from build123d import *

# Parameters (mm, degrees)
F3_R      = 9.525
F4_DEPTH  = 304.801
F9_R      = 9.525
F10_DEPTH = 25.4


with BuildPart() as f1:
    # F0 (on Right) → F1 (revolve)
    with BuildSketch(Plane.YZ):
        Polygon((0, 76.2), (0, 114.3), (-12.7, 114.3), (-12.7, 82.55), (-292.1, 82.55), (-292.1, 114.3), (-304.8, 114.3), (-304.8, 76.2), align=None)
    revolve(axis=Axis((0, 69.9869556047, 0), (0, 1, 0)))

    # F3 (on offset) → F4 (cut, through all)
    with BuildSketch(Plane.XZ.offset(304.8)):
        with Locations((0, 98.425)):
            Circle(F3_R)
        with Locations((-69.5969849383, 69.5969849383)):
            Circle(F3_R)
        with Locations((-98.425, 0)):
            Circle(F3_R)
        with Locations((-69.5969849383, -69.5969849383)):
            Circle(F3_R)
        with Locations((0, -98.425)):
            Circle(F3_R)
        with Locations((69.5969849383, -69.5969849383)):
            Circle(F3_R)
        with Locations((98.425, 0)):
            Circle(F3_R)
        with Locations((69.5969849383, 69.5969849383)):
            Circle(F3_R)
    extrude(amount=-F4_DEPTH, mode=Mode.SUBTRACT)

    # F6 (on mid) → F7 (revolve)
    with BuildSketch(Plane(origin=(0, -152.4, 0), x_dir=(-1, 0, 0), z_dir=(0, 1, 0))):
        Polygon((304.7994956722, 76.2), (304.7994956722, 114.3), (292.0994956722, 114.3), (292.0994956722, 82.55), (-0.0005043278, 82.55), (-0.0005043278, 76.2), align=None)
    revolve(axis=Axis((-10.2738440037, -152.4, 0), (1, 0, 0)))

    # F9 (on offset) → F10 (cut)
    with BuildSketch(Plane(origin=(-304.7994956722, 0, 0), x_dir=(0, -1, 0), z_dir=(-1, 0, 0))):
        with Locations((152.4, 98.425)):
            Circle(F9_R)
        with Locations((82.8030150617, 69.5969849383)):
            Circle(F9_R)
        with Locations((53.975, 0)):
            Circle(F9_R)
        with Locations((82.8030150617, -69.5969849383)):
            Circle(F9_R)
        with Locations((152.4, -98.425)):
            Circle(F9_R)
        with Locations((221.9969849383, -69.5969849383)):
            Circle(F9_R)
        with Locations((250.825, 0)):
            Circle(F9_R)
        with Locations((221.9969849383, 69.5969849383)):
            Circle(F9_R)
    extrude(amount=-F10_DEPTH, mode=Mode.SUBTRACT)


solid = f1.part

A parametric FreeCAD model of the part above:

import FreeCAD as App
import Part
import Sketcher

V = App.Vector
Q = App.Units.Quantity


def add_polygon(sketch, points):
    """Adds a closed chain of lines whose ends are joined by coincident constraints."""
    first, n = sketch.GeometryCount, len(points)
    for a, b in zip(points, points[1:] + points[:1]):
        sketch.addGeometry(Part.LineSegment(App.Vector(*a, 0), App.Vector(*b, 0)), False)
    for i in range(n):
        sketch.addConstraint(Sketcher.Constraint("Coincident", first + i, 2, first + (i + 1) % n, 1))

doc = App.newDocument("Part")
body = doc.addObject("PartDesign::Body", "Body")

# Sketch on YZ plane
sketch1 = body.newObject("Sketcher::SketchObject", "Sketch")
sketch1.AttachmentSupport = (doc.getObject("YZ_Plane"), [""])
sketch1.MapMode = "FlatFace"
add_polygon(sketch1, [(0, 76), (0, 114), (-13, 114), (-13, 83), (-292, 83), (-292, 114), (-305, 114), (-305, 76)])  # lines 0-7
sketch1.addConstraint([
    Sketcher.Constraint("Vertical", 0),
    Sketcher.Constraint("Horizontal", 1),
    Sketcher.Constraint("Vertical", 2),
    Sketcher.Constraint("Horizontal", 3),
    Sketcher.Constraint("Vertical", 4),
    Sketcher.Constraint("Horizontal", 5),
    Sketcher.Constraint("Vertical", 6),
    Sketcher.Constraint("Horizontal", 7),
    Sketcher.Constraint("PointOnObject", 0, 2, -2),
    Sketcher.Constraint("Horizontal", 1, 2, 4, 2),
    Sketcher.Constraint("Equal", 1, 5),
    Sketcher.Constraint("DistanceX", 3, 2, 3, 1, Q("11 in")),
    Sketcher.Constraint("DistanceX", 7, 1, 7, 2, Q("12 in")),
    Sketcher.Constraint("DistanceY", 0, 1, 0, 2, Q("1.5 in")),
    Sketcher.Constraint("DistanceY", -1, 1, 6, 2, Q("3 in")),
    Sketcher.Constraint("DistanceY", 2, 2, 2, 1, Q("1.25 in")),
])
revolution = body.newObject("PartDesign::Revolution", "Revolution")
revolution.Profile = sketch1
revolution.ReferenceAxis = (sketch1, ["H_Axis"])
revolution.Angle = 360

# Sketch on XZ plane
sketch2 = body.newObject("Sketcher::SketchObject", "Sketch001")
sketch2.AttachmentSupport = (doc.getObject("XZ_Plane"), [""])
sketch2.MapMode = "FlatFace"
sketch2.AttachmentOffset = App.Placement(V(0, 0, 12 * 25.4), App.Rotation())
sketch2.addGeometry([
    Part.Circle(V(0, 98, 0), V(0, 0, 1), 10),  # 0
    Part.Circle(V(-70, 70, 0), V(0, 0, 1), 10),  # 1
    Part.Circle(V(-98, 0, 0), V(0, 0, 1), 10),  # 2
    Part.Circle(V(-70, -70, 0), V(0, 0, 1), 10),  # 3
    Part.Circle(V(0, -98, 0), V(0, 0, 1), 10),  # 4
    Part.Circle(V(70, -70, 0), V(0, 0, 1), 10),  # 5
    Part.Circle(V(98, 0, 0), V(0, 0, 1), 10),  # 6
    Part.Circle(V(70, 70, 0), V(0, 0, 1), 10),  # 7
], False)
sketch2.addConstraint([
    Sketcher.Constraint("Equal", 0, 1),
    Sketcher.Constraint("Equal", 1, 2),
    Sketcher.Constraint("Equal", 2, 3),
    Sketcher.Constraint("Equal", 3, 4),
    Sketcher.Constraint("Equal", 4, 5),
    Sketcher.Constraint("Equal", 5, 6),
    Sketcher.Constraint("Equal", 6, 7),
    Sketcher.Constraint("Symmetric", 0, 3, 4, 3, -1, 1),
    Sketcher.Constraint("Symmetric", 1, 3, 5, 3, -1, 1),
    Sketcher.Constraint("Symmetric", 2, 3, 6, 3, -1, 1),
    Sketcher.Constraint("Symmetric", 3, 3, 7, 3, -1, 1),
    Sketcher.Constraint("Symmetric", 3, 3, 5, 3, -2),
    Sketcher.Constraint("PointOnObject", 0, 3, -2),
    Sketcher.Constraint("PointOnObject", 2, 3, -1),
    Sketcher.Constraint("Diameter", 0, Q("0.75 in")),
    Sketcher.Constraint("DistanceY", 4, 3, 0, 3, Q("7.75 in")),
    Sketcher.Constraint("DistanceX", 2, 3, -1, 1, Q("3.875 in")),
    Sketcher.Constraint("DistanceY", 3, 3, 1, 3, 139.19397),
    Sketcher.Constraint("DistanceX", 3, 3, 5, 3, 139.19397),
])
pocket1 = body.newObject("PartDesign::Pocket", "Pocket")
pocket1.Profile = sketch2
pocket1.Type = "ThroughAll"

# Sketch on XZ plane
sketch3 = body.newObject("Sketcher::SketchObject", "Sketch002")
sketch3.AttachmentSupport = (doc.getObject("XZ_Plane"), [""])
sketch3.MapMode = "FlatFace"
sketch3.AttachmentOffset = App.Placement(V(0, 0, 6 * 25.4), App.Rotation())
add_polygon(sketch3, [(-305, 76), (-305, 114), (-292, 114), (-292, 83), (0, 83), (0, 76)])  # lines 0-5
sketch3.addConstraint([
    Sketcher.Constraint("Vertical", 0),
    Sketcher.Constraint("Horizontal", 1),
    Sketcher.Constraint("Vertical", 2),
    Sketcher.Constraint("Horizontal", 3),
    Sketcher.Constraint("Vertical", 4),
    Sketcher.Constraint("Horizontal", 5),
    Sketcher.Constraint("DistanceX", 5, 2, 5, 1, Q("12 in")),
    Sketcher.Constraint("DistanceX", 1, 1, 1, 2, Q("0.5 in")),
    Sketcher.Constraint("DistanceY", 0, 1, 0, 2, Q("1.5 in")),
    Sketcher.Constraint("DistanceY", -1, 1, 4, 2, Q("3 in")),
    Sketcher.Constraint("DistanceY", 2, 2, 2, 1, Q("1.25 in")),
    Sketcher.Constraint("DistanceX", 0, 2, -1, 1, 304.799496),
])
revolution2 = body.newObject("PartDesign::Revolution", "Revolution001")
revolution2.Profile = sketch3
revolution2.ReferenceAxis = (sketch3, ["H_Axis"])
revolution2.Angle = 360

# Sketch on YZ plane
sketch4 = body.newObject("Sketcher::SketchObject", "Sketch003")
sketch4.AttachmentSupport = (doc.getObject("YZ_Plane"), [""])
sketch4.MapMode = "FlatFace"
sketch4.AttachmentOffset = App.Placement(V(0, 0, -304.799496), App.Rotation())
sketch4.addGeometry([
    Part.Circle(V(-152, 98, 0), V(0, 0, 1), 10),  # 0
    Part.Circle(V(-83, 70, 0), V(0, 0, 1), 10),  # 1
    Part.Circle(V(-54, 0, 0), V(0, 0, 1), 10),  # 2
    Part.Circle(V(-83, -70, 0), V(0, 0, 1), 10),  # 3
    Part.Circle(V(-152, -98, 0), V(0, 0, 1), 10),  # 4
    Part.Circle(V(-222, -70, 0), V(0, 0, 1), 10),  # 5
    Part.Circle(V(-251, 0, 0), V(0, 0, 1), 10),  # 6
    Part.Circle(V(-222, 70, 0), V(0, 0, 1), 10),  # 7
], False)
sketch4.addConstraint([
    Sketcher.Constraint("Equal", 0, 1),
    Sketcher.Constraint("Equal", 1, 2),
    Sketcher.Constraint("Equal", 2, 3),
    Sketcher.Constraint("Equal", 3, 4),
    Sketcher.Constraint("Equal", 4, 5),
    Sketcher.Constraint("Equal", 5, 6),
    Sketcher.Constraint("Equal", 6, 7),
    Sketcher.Constraint("Symmetric", 1, 3, 3, 3, -1),
    Sketcher.Constraint("Symmetric", 0, 3, 4, 3, -1),
    Sketcher.Constraint("Symmetric", 5, 3, 7, 3, -1),
    Sketcher.Constraint("PointOnObject", 2, 3, -1),
    Sketcher.Constraint("PointOnObject", 6, 3, -1),
    Sketcher.Constraint("Horizontal", 3, 3, 5, 3),
    Sketcher.Constraint("Diameter", 0, Q("0.75 in")),
    Sketcher.Constraint("DistanceX", 0, 3, -1, 1, Q("6 in")),
    Sketcher.Constraint("DistanceY", 4, 3, 0, 3, Q("7.75 in")),
    Sketcher.Constraint("DistanceX", 2, 3, -1, 1, Q("2.125 in")),
    Sketcher.Constraint("DistanceX", 6, 3, -1, 1, Q("9.875 in")),
    Sketcher.Constraint("DistanceY", 3, 3, 1, 3, 139.19397),
    Sketcher.Constraint("DistanceX", 5, 3, 3, 3, 139.19397),
    Sketcher.Constraint("DistanceX", 1, 3, -1, 1, 82.803015),
])
pocket2 = body.newObject("PartDesign::Pocket", "Pocket001")
pocket2.Profile = sketch4
pocket2.Length = Q("1 in")
pocket2.Reversed = True

doc.recompute()
